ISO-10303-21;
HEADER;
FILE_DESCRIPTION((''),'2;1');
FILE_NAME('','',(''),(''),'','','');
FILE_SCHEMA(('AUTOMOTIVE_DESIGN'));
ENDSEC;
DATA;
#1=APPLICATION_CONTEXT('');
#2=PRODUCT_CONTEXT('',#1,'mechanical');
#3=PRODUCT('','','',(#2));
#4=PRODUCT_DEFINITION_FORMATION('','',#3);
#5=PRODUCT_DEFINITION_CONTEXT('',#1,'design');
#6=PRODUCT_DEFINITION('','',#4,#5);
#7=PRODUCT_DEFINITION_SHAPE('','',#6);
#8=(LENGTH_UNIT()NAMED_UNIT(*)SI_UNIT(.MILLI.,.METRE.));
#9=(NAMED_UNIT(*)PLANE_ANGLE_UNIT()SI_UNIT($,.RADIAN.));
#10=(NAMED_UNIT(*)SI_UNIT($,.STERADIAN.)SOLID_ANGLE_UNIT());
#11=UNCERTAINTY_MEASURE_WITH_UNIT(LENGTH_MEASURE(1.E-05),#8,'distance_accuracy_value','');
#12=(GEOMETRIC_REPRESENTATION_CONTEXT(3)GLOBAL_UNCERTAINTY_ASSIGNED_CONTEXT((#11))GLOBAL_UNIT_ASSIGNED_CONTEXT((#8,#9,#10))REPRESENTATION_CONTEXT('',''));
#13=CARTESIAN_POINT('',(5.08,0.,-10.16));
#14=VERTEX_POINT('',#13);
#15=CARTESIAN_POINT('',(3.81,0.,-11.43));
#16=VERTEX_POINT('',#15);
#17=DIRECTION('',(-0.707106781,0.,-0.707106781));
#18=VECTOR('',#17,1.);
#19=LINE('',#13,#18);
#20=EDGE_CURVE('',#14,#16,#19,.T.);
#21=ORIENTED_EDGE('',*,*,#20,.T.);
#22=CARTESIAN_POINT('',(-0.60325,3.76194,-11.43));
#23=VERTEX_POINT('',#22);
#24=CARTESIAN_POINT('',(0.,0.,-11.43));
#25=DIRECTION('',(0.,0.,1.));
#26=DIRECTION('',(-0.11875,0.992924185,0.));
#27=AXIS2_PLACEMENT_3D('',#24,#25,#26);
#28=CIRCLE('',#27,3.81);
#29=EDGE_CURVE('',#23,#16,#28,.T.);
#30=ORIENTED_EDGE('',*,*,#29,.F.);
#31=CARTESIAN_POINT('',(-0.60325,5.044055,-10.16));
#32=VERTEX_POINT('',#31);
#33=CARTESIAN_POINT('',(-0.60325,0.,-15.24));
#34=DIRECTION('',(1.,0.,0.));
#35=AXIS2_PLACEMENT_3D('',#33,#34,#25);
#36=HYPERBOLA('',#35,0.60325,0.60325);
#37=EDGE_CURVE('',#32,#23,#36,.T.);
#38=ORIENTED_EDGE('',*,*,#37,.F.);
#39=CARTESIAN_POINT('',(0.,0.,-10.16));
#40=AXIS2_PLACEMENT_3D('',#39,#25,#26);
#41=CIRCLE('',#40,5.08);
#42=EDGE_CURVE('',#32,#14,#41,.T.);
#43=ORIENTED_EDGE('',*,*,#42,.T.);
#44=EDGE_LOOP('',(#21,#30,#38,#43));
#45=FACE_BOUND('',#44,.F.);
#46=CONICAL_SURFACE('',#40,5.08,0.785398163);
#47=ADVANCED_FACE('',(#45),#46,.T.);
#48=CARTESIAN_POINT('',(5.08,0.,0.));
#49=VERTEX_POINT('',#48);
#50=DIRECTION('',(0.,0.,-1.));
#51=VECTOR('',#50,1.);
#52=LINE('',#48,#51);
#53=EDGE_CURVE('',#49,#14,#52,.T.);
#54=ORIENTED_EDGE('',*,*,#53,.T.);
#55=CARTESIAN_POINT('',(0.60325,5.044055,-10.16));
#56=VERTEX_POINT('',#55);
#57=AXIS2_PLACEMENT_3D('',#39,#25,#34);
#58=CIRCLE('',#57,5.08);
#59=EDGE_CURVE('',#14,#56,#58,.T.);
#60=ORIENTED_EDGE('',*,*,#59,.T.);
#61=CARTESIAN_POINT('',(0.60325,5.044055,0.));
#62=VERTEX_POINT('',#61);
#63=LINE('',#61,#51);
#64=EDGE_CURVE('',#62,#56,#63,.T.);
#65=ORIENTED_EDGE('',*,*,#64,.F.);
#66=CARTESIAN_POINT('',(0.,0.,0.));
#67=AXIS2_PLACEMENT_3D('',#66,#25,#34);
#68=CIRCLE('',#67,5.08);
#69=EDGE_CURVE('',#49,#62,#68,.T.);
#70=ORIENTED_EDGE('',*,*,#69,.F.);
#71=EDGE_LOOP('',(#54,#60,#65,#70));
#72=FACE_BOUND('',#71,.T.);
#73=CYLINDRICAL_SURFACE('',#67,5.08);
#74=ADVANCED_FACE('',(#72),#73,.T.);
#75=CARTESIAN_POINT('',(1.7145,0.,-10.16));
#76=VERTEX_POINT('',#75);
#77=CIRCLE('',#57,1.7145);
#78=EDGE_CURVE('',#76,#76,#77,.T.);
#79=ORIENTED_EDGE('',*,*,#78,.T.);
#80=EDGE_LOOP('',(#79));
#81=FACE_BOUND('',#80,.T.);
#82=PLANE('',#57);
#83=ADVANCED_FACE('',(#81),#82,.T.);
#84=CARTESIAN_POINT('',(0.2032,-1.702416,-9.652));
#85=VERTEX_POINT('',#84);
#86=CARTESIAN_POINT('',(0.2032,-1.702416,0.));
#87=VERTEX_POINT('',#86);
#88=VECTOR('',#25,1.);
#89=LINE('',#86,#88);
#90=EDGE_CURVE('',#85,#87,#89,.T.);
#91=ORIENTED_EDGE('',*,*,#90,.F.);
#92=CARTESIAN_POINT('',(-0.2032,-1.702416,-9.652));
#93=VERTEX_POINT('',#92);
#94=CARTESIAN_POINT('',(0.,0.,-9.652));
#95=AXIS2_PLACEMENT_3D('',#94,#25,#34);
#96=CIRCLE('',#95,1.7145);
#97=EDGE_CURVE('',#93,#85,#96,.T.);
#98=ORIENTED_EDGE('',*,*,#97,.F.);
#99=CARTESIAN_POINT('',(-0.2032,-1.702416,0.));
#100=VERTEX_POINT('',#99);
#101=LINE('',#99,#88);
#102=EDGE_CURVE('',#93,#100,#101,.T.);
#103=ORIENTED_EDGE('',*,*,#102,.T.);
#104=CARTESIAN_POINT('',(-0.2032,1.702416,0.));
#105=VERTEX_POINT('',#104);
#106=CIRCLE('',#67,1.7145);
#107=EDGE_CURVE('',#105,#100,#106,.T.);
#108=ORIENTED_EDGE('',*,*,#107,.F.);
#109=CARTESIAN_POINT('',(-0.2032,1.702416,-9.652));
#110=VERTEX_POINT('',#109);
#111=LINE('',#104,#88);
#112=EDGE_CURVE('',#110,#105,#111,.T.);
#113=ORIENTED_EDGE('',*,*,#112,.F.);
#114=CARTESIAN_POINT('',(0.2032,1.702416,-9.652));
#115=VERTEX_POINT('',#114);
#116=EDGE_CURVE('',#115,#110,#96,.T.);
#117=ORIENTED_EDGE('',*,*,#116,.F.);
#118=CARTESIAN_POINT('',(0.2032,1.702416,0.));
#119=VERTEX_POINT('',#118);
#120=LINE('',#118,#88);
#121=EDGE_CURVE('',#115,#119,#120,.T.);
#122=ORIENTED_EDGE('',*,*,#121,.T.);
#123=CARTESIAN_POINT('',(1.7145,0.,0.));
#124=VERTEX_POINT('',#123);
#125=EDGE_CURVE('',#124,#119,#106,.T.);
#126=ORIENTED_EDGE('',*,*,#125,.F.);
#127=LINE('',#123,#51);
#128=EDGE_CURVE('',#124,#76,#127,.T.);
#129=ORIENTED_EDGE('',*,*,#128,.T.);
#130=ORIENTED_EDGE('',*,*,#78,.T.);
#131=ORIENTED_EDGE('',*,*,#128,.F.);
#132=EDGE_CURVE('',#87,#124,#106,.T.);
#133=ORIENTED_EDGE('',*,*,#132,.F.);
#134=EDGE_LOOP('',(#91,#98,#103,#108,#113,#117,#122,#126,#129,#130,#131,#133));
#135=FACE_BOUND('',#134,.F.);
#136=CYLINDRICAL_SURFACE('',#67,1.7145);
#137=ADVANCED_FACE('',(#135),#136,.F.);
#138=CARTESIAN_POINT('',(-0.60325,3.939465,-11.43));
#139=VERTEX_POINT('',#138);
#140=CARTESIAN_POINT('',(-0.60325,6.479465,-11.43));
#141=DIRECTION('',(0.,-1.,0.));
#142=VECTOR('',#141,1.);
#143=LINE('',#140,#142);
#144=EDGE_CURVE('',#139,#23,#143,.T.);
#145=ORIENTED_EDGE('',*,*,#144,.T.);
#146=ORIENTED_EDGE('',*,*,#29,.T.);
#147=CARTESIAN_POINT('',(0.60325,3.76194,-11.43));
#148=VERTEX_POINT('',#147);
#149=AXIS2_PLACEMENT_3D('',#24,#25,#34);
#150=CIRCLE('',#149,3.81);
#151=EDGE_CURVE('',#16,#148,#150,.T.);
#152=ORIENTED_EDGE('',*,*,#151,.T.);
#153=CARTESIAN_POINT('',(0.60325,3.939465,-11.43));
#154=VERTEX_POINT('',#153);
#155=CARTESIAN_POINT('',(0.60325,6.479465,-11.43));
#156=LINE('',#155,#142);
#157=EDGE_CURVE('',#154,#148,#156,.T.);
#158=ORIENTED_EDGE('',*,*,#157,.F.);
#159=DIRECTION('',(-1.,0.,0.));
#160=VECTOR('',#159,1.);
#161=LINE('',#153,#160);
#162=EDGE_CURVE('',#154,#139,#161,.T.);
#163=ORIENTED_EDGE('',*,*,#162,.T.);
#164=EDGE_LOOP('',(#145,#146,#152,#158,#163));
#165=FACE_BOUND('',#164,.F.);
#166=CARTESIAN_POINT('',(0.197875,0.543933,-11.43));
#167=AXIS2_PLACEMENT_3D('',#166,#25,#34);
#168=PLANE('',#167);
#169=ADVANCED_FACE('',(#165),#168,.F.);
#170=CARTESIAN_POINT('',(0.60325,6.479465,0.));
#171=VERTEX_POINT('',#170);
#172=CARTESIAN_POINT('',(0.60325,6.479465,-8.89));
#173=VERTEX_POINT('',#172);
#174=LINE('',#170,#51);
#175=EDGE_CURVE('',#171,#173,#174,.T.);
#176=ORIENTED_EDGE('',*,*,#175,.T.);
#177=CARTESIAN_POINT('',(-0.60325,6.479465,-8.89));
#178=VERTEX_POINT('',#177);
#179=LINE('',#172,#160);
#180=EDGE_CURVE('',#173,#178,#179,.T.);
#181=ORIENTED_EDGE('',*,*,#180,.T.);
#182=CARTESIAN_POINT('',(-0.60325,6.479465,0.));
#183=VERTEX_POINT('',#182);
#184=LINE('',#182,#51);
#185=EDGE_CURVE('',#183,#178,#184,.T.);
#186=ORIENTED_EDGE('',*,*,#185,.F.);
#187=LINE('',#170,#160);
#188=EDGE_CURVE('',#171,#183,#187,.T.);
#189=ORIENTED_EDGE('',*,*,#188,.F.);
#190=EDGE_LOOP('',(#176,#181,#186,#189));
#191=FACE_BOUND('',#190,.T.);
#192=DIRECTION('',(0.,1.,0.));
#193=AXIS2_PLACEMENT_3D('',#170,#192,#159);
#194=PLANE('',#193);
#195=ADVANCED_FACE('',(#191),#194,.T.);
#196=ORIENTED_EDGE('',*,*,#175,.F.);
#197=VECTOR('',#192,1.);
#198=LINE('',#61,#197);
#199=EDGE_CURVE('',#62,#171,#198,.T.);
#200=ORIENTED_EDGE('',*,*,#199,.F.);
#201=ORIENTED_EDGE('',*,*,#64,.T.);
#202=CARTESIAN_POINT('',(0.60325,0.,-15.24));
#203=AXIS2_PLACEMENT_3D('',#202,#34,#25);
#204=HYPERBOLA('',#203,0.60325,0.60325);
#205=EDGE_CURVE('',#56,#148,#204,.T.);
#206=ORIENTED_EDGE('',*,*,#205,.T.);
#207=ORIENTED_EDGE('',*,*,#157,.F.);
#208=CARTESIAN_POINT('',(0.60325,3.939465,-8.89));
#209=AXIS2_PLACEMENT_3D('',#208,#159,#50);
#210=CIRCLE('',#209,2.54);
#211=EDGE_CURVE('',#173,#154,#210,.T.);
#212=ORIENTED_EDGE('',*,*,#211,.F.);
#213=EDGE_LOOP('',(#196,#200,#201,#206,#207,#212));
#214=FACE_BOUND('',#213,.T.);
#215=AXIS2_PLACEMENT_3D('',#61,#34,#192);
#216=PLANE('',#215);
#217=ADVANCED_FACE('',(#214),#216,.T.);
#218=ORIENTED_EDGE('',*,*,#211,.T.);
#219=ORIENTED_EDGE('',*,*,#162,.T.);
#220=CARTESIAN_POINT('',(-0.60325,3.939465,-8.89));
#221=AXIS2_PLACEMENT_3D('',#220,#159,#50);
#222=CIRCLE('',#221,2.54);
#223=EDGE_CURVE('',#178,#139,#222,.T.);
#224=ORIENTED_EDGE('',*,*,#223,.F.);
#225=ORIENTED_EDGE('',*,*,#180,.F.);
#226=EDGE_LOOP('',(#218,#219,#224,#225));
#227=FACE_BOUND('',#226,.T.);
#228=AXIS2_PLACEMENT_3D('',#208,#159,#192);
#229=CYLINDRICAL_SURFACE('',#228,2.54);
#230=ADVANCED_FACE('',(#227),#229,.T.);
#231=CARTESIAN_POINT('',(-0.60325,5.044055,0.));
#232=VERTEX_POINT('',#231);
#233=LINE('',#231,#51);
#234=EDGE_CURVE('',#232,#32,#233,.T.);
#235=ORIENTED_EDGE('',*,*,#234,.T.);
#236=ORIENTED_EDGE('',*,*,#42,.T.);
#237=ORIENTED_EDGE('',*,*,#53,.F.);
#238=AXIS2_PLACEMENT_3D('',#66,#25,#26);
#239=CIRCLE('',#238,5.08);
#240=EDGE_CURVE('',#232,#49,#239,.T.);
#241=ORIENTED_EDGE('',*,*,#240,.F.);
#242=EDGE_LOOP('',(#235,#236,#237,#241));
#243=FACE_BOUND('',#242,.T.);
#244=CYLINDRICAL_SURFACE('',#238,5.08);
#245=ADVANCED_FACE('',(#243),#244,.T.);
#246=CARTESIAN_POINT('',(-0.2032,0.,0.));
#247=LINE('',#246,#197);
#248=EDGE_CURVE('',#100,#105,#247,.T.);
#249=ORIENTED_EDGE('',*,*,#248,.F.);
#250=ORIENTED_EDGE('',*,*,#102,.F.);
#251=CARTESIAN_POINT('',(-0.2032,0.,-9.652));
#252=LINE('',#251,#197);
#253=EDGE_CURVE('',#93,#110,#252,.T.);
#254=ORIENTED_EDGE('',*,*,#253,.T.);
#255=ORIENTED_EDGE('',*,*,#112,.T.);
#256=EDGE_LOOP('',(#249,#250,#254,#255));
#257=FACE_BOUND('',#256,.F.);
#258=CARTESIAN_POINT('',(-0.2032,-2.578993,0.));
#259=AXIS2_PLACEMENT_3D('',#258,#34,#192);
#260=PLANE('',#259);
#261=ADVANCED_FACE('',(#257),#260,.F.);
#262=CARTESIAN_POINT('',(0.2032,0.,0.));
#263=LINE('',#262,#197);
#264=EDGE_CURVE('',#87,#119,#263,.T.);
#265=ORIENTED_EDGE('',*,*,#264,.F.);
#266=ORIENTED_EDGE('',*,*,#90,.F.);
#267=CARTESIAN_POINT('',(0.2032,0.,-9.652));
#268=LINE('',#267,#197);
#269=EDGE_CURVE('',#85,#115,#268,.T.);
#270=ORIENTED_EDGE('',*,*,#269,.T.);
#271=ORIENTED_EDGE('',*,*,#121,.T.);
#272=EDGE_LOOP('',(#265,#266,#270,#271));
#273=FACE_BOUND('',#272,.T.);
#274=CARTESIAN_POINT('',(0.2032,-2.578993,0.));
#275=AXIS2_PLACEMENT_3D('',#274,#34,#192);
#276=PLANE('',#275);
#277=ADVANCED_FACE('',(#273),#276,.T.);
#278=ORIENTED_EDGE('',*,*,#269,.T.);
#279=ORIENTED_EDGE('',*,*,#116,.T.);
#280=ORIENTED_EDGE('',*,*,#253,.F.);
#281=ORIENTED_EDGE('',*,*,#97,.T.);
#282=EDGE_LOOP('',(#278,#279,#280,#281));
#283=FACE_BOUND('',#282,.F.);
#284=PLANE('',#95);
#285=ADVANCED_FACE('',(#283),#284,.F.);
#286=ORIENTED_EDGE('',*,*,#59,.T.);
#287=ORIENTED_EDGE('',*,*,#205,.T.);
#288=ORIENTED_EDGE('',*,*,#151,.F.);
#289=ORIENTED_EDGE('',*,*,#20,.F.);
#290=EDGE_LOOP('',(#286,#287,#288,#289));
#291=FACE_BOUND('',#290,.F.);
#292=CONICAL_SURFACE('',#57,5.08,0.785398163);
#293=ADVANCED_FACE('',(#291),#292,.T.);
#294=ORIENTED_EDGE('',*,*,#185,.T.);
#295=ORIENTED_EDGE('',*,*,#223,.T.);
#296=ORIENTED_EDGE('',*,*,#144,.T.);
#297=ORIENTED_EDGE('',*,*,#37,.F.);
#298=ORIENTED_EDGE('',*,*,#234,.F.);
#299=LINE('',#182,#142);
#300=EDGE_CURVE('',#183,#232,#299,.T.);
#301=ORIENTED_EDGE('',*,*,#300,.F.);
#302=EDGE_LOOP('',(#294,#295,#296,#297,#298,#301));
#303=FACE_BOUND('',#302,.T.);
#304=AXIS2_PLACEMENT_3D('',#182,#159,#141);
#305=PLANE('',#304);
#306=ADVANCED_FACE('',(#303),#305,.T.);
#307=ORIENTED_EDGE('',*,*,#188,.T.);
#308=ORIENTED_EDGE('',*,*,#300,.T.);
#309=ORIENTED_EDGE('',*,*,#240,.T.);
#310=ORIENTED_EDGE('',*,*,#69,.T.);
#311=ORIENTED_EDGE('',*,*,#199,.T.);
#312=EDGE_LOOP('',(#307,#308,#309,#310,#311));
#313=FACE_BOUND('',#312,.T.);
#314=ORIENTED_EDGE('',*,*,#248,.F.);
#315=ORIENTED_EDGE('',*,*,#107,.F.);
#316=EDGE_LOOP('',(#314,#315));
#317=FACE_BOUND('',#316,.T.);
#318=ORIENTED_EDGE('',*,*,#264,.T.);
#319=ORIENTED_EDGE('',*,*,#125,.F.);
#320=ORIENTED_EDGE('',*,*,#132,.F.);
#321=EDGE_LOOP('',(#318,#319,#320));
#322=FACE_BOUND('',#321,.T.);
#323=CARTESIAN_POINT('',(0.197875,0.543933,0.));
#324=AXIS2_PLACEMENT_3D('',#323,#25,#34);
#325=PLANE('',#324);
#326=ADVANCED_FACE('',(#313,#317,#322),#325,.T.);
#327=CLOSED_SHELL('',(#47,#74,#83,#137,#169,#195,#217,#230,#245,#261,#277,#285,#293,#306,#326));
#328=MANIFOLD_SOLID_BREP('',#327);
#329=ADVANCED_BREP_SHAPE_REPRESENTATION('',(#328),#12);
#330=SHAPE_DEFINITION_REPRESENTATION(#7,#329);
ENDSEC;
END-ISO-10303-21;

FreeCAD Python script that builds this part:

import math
import FreeCAD as App
import Part
import Sketcher

V = App.Vector
Q = App.Units.Quantity


def edges_at(feature, points):
    """Names of the edges that pass closest to the given points."""
    edges = feature.Shape.Edges
    near = lambda p: min(range(len(edges)), key=lambda i: edges[i].distToShape(Part.Vertex(*p))[0])
    return sorted({f"Edge{near(p) + 1}" for p in points})


def add_polygon(sketch, points):
    """Adds a closed chain of lines whose ends are joined by coincident constraints."""
    first, n = sketch.GeometryCount, len(points)
    for a, b in zip(points, points[1:] + points[:1]):
        sketch.addGeometry(Part.LineSegment(App.Vector(*a, 0), App.Vector(*b, 0)), False)
    for i in range(n):
        sketch.addConstraint(Sketcher.Constraint("Coincident", first + i, 2, first + (i + 1) % n, 1))

doc = App.newDocument("Part")
body = doc.addObject("PartDesign::Body", "Body")

sketch1 = body.newObject("Sketcher::SketchObject", "Sketch")
sketch1.AttachmentSupport = (doc.getObject("XY_Plane"), [""])
sketch1.MapMode = "FlatFace"
sketch1.addGeometry(Part.ArcOfCircle(Part.Circle(V(0, 0, 0), V(0, 0, 1), 5.1), math.radians(97), math.radians(360)), False)
sketch1.addGeometry(Part.ArcOfCircle(Part.Circle(V(0, 0, 0), V(0, 0, 1), 5.1), math.radians(0), math.radians(83)), False)
sketch1.addGeometry(Part.LineSegment(V(0.6, 5, 0), V(0.6, 6.5, 0)), False)
sketch1.addGeometry(Part.LineSegment(V(0.6, 6.5, 0), V(-0.6, 6.5, 0)), False)
sketch1.addGeometry(Part.LineSegment(V(-0.6, 6.5, 0), V(-0.6, 5, 0)), False)
sketch1.addConstraint(Sketcher.Constraint("Tangent", 0, 2, 1, 1))
sketch1.addConstraint(Sketcher.Constraint("Coincident", 1, 2, 2, 1))
sketch1.addConstraint(Sketcher.Constraint("Coincident", 2, 2, 3, 1))
sketch1.addConstraint(Sketcher.Constraint("Coincident", 3, 2, 4, 1))
sketch1.addConstraint(Sketcher.Constraint("Coincident", 4, 2, 0, 1))
sketch1.addConstraint(Sketcher.Constraint("Vertical", 2))
sketch1.addConstraint(Sketcher.Constraint("Horizontal", 3))
sketch1.addConstraint(Sketcher.Constraint("Vertical", 4))
sketch1.addConstraint(Sketcher.Constraint("Coincident", 0, 3, -1, 1))
sketch1.addConstraint(Sketcher.Constraint("Equal", 0, 1))
sketch1.addConstraint(Sketcher.Constraint("PointOnObject", 0, 2, -1))
sketch1.addConstraint(Sketcher.Constraint("Horizontal", 1, 2, 4, 2))
sketch1.addConstraint(Sketcher.Constraint("Radius", 0, Q("0.2 in")))
sketch1.addConstraint(Sketcher.Constraint("DistanceX", 3, 2, 3, 1, Q("0.0475 in")))
sketch1.addConstraint(Sketcher.Constraint("DistanceY", 2, 1, 2, 2, Q("1.43541 mm")))
pad1 = body.newObject("PartDesign::Pad", "Pad")
pad1.Profile = sketch1
pad1.Length = Q("0.45 in")
pad1.Reversed = True

sketch2 = body.newObject("Sketcher::SketchObject", "Sketch001")
sketch2.AttachmentSupport = (doc.getObject("XY_Plane"), [""])
sketch2.MapMode = "FlatFace"
sketch2.addGeometry(Part.Circle(V(0, 0, 0), V(0, 0, 1), 1.7), False)
sketch2.addConstraint(Sketcher.Constraint("Coincident", 0, 3, -1, 1))
sketch2.addConstraint(Sketcher.Constraint("Diameter", 0, Q("0.135 in")))
pocket1 = body.newObject("PartDesign::Pocket", "Pocket")
pocket1.Profile = sketch2
pocket1.Length = Q("0.4 in")

sketch3 = body.newObject("Sketcher::SketchObject", "Sketch002")
sketch3.AttachmentSupport = (doc.getObject("XY_Plane"), [""])
sketch3.MapMode = "FlatFace"
add_polygon(sketch3, [(-0.2, 2.58), (-0.2, -2.58), (0.2, -2.58), (0.2, 2.58)])
sketch3.addConstraint(Sketcher.Constraint("Vertical", 0))
sketch3.addConstraint(Sketcher.Constraint("Horizontal", 1))
sketch3.addConstraint(Sketcher.Constraint("Vertical", 2))
sketch3.addConstraint(Sketcher.Constraint("Horizontal", 3))
sketch3.addConstraint(Sketcher.Constraint("Symmetric", 0, 2, 2, 2, -1, 1))
sketch3.addConstraint(Sketcher.Constraint("DistanceX", 1, 1, 1, 2, Q("0.016 in")))
sketch3.addConstraint(Sketcher.Constraint("DistanceY", 0, 2, 0, 1, Q("5.157987 mm")))
pad2 = body.newObject("PartDesign::Pad", "Pad001")
pad2.Profile = sketch3
pad2.Length = Q("0.38 in")
pad2.Reversed = True
doc.recompute()

chamfer = body.newObject("PartDesign::Chamfer", "Chamfer")
chamfer.Base = (pad2, edges_at(pad2, [(-3.372, -3.799, -11.43)]))
chamfer.Size = Q("0.05 in")
doc.recompute()

fillet = body.newObject("PartDesign::Fillet", "Fillet")
fillet.Base = (chamfer, edges_at(chamfer, [(0, 6.479, -11.43)]))
fillet.Radius = Q("0.1 in")

doc.recompute()
